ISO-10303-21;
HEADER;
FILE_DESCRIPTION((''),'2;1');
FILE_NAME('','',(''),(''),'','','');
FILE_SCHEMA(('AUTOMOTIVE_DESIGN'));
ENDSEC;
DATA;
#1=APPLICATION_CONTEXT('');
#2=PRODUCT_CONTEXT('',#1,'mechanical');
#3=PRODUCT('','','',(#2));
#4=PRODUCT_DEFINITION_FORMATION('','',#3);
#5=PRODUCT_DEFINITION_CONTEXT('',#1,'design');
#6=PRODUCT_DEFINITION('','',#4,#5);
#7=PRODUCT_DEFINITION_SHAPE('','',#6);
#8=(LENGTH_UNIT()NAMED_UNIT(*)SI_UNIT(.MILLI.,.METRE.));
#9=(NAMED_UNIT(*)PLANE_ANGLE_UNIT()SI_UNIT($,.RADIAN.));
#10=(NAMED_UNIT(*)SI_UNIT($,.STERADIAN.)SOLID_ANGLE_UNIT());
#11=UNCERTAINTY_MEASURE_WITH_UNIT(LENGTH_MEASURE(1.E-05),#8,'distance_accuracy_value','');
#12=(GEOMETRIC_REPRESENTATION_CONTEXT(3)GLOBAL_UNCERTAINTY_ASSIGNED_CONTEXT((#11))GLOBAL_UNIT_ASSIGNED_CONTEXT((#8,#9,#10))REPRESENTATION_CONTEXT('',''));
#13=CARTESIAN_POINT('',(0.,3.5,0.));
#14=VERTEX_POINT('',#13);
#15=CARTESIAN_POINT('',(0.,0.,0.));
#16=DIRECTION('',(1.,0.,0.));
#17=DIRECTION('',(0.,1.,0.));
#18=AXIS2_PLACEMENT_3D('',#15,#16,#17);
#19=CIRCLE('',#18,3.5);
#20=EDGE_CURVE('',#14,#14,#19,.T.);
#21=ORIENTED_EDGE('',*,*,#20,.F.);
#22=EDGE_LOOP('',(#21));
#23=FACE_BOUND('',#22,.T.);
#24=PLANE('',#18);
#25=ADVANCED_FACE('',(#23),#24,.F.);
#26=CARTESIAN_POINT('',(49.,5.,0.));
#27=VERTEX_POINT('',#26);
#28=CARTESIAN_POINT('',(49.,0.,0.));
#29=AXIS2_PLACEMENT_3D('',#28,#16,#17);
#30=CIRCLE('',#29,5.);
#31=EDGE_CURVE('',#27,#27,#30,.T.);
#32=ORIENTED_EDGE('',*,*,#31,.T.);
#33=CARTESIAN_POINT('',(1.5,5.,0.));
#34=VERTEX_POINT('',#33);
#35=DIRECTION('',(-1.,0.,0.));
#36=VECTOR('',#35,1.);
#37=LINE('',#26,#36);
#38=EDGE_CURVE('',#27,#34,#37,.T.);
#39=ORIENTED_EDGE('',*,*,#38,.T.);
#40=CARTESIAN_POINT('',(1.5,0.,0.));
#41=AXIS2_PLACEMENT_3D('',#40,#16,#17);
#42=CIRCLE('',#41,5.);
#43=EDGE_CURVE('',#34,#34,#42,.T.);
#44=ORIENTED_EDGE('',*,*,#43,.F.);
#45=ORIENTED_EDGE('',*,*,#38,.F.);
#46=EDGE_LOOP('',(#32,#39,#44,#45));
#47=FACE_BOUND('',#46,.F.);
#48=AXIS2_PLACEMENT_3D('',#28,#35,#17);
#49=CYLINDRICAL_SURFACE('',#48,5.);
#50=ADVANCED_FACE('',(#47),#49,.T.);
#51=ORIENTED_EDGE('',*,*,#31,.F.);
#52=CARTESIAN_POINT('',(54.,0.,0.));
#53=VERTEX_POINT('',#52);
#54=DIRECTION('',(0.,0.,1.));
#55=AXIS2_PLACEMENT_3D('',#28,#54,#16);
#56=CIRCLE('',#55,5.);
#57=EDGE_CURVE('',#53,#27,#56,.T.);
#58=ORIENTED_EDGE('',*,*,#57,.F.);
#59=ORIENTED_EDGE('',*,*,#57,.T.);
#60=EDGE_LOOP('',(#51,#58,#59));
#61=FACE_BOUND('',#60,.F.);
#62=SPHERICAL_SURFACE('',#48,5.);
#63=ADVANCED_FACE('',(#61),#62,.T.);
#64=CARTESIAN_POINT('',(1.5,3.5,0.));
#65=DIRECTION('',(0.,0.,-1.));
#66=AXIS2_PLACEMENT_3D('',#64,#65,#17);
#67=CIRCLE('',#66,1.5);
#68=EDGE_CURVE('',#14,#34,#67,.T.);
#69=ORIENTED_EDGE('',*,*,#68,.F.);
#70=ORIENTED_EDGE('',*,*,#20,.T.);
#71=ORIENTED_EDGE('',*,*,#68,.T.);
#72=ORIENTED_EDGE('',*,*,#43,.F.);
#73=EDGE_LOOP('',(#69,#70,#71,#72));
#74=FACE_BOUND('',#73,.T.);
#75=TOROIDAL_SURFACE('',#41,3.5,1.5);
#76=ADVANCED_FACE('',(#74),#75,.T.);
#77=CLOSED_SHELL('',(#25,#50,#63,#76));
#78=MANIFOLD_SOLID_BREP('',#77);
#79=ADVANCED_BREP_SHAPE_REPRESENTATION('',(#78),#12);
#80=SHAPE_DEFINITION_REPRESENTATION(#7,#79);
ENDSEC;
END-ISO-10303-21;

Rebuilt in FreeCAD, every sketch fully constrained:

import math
import FreeCAD as App
import Part
import Sketcher
from FreeCAD import Vector
Q = App.Units.Quantity


def edges_at(feature, points):
    """Names of the edges that pass closest to the given points."""
    edges = feature.Shape.Edges
    near = lambda p: min(range(len(edges)), key=lambda i: edges[i].distToShape(Part.Vertex(*p))[0])
    return sorted({f"Edge{near(p) + 1}" for p in points})

doc = App.newDocument("Part")
body = doc.addObject("PartDesign::Body", "Body")

# Sketch on XY plane
sketch1 = body.newObject("Sketcher::SketchObject", "Sketch")
sketch1.AttachmentSupport = (doc.getObject("XY_Plane"), [""])
sketch1.MapMode = "FlatFace"
sketch1.addGeometry([
    Part.LineSegment(Vector(0, 5, 0), Vector(0, 0, 0)),
    Part.LineSegment(Vector(0, 0, 0), Vector(54, 0, 0)),
    Part.ArcOfCircle(Part.Circle(Vector(49, 0, 0), Vector(0, 0, 1), 5), math.radians(0), math.radians(90)),
    Part.LineSegment(Vector(49, 5, 0), Vector(0, 5, 0)),
], False)
sketch1.addConstraint([
    Sketcher.Constraint("Coincident", 0, 2, 1, 1),
    Sketcher.Constraint("Coincident", 1, 2, 2, 1),
    Sketcher.Constraint("Tangent", 2, 2, 3, 1),
    Sketcher.Constraint("Coincident", 3, 2, 0, 1),
    Sketcher.Constraint("Vertical", 0),
    Sketcher.Constraint("Horizontal", 1),
    Sketcher.Constraint("Horizontal", 3),
    Sketcher.Constraint("Coincident", 0, 2, -1, 1),
    Sketcher.Constraint("PointOnObject", 2, 3, -1),
    Sketcher.Constraint("Radius", 2, Q("5 mm")),
    Sketcher.Constraint("DistanceX", 3, 2, 3, 1, Q("49 mm")),
])
revolution = body.newObject("PartDesign::Revolution", "Revolution")
revolution.Profile = sketch1
revolution.ReferenceAxis = (sketch1, ["H_Axis"])
revolution.Angle = 360
doc.recompute()

fillet = body.newObject("PartDesign::Fillet", "Fillet")
fillet.Base = (revolution, edges_at(revolution, [(0, -5, 0)]))
fillet.Radius = 1.5

doc.recompute()
